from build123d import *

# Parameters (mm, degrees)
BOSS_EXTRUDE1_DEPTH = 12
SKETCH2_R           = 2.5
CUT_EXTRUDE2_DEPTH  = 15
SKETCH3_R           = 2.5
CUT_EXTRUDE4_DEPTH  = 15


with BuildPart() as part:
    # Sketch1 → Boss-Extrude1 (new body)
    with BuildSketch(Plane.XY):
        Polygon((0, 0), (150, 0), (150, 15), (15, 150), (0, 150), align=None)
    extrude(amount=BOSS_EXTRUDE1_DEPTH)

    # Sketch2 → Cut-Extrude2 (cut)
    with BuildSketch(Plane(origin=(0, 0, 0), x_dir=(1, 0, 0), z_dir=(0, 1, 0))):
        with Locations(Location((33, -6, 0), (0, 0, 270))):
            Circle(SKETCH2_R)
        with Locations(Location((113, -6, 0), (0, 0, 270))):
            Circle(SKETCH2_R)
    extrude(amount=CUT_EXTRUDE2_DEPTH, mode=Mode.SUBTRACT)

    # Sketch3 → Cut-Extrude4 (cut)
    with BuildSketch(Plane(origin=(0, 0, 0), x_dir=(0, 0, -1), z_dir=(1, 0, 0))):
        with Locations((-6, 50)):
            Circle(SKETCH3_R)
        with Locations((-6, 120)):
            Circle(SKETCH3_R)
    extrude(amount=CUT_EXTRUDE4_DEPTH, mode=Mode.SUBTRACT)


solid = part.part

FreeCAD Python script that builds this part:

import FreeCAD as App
import Part
import Sketcher


def add_polygon(sketch, points):
    """Adds a closed chain of lines whose ends are joined by coincident constraints."""
    first, n = sketch.GeometryCount, len(points)
    for a, b in zip(points, points[1:] + points[:1]):
        sketch.addGeometry(Part.LineSegment(App.Vector(*a, 0), App.Vector(*b, 0)), False)
    for i in range(n):
        sketch.addConstraint(Sketcher.Constraint("Coincident", first + i, 2, first + (i + 1) % n, 1))

doc = App.newDocument("Part")
body = doc.addObject("PartDesign::Body", "Body")

# Sketch on XY plane
sketch1 = body.newObject("Sketcher::SketchObject", "Sketch")
sketch1.AttachmentSupport = (doc.getObject("XY_Plane"), [""])
sketch1.MapMode = "FlatFace"
add_polygon(sketch1, [(0, 0), (150, 0), (150, 15), (15, 150), (0, 150)])  # lines 0-4
sketch1.addConstraint([
    Sketcher.Constraint("Horizontal", 0),
    Sketcher.Constraint("Vertical", 1),
    Sketcher.Constraint("Horizontal", 3),
    Sketcher.Constraint("Vertical", 4),
    Sketcher.Constraint("Coincident", 4, 2, -1, 1),
    Sketcher.Constraint("Equal", 3, 1),
    Sketcher.Constraint("Equal", 0, 4),
    Sketcher.Constraint("DistanceX", 0, 1, 0, 2, 150.0),
    Sketcher.Constraint("DistanceX", 3, 2, 3, 1, 15.0),
])
pad1 = body.newObject("PartDesign::Pad", "Pad")
pad1.Profile = sketch1
pad1.Length = 12

# Sketch on XZ plane
sketch2 = body.newObject("Sketcher::SketchObject", "Sketch001")
sketch2.AttachmentSupport = (doc.getObject("XZ_Plane"), [""])
sketch2.MapMode = "FlatFace"
sketch2.addGeometry([
    Part.Circle(App.Vector(33, 6, 0), App.Vector(0, 0, 1), 2.5),
    Part.Circle(App.Vector(113, 6, 0), App.Vector(0, 0, 1), 2.5),
], False)
sketch2.addConstraint([
    Sketcher.Constraint("Equal", 0, 1),
    Sketcher.Constraint("Horizontal", 0, 3, 1, 3),
    Sketcher.Constraint("Diameter", 0, 5.0),
    Sketcher.Constraint("DistanceX", -1, 1, 0, 3, 33.0),
    Sketcher.Constraint("DistanceY", -1, 1, 0, 3, 6.0),
    Sketcher.Constraint("DistanceX", -1, 1, 1, 3, 113.0),
])
pocket1 = body.newObject("PartDesign::Pocket", "Pocket")
pocket1.Profile = sketch2
pocket1.Length = 15

# Sketch on YZ plane
sketch3 = body.newObject("Sketcher::SketchObject", "Sketch002")
sketch3.AttachmentSupport = (doc.getObject("YZ_Plane"), [""])
sketch3.MapMode = "FlatFace"
sketch3.addGeometry([
    Part.Circle(App.Vector(50, 6, 0), App.Vector(0, 0, 1), 2.5),
    Part.Circle(App.Vector(120, 6, 0), App.Vector(0, 0, 1), 2.5),
], False)
sketch3.addConstraint([
    Sketcher.Constraint("Equal", 0, 1),
    Sketcher.Constraint("Horizontal", 0, 3, 1, 3),
    Sketcher.Constraint("Diameter", 0, 5.0),
    Sketcher.Constraint("DistanceX", -1, 1, 0, 3, 50.0),
    Sketcher.Constraint("DistanceY", -1, 1, 0, 3, 6.0),
    Sketcher.Constraint("DistanceX", -1, 1, 1, 3, 120.0),
])
pocket2 = body.newObject("PartDesign::Pocket", "Pocket001")
pocket2.Profile = sketch3
pocket2.Length = 15
pocket2.Reversed = True

doc.recompute()
